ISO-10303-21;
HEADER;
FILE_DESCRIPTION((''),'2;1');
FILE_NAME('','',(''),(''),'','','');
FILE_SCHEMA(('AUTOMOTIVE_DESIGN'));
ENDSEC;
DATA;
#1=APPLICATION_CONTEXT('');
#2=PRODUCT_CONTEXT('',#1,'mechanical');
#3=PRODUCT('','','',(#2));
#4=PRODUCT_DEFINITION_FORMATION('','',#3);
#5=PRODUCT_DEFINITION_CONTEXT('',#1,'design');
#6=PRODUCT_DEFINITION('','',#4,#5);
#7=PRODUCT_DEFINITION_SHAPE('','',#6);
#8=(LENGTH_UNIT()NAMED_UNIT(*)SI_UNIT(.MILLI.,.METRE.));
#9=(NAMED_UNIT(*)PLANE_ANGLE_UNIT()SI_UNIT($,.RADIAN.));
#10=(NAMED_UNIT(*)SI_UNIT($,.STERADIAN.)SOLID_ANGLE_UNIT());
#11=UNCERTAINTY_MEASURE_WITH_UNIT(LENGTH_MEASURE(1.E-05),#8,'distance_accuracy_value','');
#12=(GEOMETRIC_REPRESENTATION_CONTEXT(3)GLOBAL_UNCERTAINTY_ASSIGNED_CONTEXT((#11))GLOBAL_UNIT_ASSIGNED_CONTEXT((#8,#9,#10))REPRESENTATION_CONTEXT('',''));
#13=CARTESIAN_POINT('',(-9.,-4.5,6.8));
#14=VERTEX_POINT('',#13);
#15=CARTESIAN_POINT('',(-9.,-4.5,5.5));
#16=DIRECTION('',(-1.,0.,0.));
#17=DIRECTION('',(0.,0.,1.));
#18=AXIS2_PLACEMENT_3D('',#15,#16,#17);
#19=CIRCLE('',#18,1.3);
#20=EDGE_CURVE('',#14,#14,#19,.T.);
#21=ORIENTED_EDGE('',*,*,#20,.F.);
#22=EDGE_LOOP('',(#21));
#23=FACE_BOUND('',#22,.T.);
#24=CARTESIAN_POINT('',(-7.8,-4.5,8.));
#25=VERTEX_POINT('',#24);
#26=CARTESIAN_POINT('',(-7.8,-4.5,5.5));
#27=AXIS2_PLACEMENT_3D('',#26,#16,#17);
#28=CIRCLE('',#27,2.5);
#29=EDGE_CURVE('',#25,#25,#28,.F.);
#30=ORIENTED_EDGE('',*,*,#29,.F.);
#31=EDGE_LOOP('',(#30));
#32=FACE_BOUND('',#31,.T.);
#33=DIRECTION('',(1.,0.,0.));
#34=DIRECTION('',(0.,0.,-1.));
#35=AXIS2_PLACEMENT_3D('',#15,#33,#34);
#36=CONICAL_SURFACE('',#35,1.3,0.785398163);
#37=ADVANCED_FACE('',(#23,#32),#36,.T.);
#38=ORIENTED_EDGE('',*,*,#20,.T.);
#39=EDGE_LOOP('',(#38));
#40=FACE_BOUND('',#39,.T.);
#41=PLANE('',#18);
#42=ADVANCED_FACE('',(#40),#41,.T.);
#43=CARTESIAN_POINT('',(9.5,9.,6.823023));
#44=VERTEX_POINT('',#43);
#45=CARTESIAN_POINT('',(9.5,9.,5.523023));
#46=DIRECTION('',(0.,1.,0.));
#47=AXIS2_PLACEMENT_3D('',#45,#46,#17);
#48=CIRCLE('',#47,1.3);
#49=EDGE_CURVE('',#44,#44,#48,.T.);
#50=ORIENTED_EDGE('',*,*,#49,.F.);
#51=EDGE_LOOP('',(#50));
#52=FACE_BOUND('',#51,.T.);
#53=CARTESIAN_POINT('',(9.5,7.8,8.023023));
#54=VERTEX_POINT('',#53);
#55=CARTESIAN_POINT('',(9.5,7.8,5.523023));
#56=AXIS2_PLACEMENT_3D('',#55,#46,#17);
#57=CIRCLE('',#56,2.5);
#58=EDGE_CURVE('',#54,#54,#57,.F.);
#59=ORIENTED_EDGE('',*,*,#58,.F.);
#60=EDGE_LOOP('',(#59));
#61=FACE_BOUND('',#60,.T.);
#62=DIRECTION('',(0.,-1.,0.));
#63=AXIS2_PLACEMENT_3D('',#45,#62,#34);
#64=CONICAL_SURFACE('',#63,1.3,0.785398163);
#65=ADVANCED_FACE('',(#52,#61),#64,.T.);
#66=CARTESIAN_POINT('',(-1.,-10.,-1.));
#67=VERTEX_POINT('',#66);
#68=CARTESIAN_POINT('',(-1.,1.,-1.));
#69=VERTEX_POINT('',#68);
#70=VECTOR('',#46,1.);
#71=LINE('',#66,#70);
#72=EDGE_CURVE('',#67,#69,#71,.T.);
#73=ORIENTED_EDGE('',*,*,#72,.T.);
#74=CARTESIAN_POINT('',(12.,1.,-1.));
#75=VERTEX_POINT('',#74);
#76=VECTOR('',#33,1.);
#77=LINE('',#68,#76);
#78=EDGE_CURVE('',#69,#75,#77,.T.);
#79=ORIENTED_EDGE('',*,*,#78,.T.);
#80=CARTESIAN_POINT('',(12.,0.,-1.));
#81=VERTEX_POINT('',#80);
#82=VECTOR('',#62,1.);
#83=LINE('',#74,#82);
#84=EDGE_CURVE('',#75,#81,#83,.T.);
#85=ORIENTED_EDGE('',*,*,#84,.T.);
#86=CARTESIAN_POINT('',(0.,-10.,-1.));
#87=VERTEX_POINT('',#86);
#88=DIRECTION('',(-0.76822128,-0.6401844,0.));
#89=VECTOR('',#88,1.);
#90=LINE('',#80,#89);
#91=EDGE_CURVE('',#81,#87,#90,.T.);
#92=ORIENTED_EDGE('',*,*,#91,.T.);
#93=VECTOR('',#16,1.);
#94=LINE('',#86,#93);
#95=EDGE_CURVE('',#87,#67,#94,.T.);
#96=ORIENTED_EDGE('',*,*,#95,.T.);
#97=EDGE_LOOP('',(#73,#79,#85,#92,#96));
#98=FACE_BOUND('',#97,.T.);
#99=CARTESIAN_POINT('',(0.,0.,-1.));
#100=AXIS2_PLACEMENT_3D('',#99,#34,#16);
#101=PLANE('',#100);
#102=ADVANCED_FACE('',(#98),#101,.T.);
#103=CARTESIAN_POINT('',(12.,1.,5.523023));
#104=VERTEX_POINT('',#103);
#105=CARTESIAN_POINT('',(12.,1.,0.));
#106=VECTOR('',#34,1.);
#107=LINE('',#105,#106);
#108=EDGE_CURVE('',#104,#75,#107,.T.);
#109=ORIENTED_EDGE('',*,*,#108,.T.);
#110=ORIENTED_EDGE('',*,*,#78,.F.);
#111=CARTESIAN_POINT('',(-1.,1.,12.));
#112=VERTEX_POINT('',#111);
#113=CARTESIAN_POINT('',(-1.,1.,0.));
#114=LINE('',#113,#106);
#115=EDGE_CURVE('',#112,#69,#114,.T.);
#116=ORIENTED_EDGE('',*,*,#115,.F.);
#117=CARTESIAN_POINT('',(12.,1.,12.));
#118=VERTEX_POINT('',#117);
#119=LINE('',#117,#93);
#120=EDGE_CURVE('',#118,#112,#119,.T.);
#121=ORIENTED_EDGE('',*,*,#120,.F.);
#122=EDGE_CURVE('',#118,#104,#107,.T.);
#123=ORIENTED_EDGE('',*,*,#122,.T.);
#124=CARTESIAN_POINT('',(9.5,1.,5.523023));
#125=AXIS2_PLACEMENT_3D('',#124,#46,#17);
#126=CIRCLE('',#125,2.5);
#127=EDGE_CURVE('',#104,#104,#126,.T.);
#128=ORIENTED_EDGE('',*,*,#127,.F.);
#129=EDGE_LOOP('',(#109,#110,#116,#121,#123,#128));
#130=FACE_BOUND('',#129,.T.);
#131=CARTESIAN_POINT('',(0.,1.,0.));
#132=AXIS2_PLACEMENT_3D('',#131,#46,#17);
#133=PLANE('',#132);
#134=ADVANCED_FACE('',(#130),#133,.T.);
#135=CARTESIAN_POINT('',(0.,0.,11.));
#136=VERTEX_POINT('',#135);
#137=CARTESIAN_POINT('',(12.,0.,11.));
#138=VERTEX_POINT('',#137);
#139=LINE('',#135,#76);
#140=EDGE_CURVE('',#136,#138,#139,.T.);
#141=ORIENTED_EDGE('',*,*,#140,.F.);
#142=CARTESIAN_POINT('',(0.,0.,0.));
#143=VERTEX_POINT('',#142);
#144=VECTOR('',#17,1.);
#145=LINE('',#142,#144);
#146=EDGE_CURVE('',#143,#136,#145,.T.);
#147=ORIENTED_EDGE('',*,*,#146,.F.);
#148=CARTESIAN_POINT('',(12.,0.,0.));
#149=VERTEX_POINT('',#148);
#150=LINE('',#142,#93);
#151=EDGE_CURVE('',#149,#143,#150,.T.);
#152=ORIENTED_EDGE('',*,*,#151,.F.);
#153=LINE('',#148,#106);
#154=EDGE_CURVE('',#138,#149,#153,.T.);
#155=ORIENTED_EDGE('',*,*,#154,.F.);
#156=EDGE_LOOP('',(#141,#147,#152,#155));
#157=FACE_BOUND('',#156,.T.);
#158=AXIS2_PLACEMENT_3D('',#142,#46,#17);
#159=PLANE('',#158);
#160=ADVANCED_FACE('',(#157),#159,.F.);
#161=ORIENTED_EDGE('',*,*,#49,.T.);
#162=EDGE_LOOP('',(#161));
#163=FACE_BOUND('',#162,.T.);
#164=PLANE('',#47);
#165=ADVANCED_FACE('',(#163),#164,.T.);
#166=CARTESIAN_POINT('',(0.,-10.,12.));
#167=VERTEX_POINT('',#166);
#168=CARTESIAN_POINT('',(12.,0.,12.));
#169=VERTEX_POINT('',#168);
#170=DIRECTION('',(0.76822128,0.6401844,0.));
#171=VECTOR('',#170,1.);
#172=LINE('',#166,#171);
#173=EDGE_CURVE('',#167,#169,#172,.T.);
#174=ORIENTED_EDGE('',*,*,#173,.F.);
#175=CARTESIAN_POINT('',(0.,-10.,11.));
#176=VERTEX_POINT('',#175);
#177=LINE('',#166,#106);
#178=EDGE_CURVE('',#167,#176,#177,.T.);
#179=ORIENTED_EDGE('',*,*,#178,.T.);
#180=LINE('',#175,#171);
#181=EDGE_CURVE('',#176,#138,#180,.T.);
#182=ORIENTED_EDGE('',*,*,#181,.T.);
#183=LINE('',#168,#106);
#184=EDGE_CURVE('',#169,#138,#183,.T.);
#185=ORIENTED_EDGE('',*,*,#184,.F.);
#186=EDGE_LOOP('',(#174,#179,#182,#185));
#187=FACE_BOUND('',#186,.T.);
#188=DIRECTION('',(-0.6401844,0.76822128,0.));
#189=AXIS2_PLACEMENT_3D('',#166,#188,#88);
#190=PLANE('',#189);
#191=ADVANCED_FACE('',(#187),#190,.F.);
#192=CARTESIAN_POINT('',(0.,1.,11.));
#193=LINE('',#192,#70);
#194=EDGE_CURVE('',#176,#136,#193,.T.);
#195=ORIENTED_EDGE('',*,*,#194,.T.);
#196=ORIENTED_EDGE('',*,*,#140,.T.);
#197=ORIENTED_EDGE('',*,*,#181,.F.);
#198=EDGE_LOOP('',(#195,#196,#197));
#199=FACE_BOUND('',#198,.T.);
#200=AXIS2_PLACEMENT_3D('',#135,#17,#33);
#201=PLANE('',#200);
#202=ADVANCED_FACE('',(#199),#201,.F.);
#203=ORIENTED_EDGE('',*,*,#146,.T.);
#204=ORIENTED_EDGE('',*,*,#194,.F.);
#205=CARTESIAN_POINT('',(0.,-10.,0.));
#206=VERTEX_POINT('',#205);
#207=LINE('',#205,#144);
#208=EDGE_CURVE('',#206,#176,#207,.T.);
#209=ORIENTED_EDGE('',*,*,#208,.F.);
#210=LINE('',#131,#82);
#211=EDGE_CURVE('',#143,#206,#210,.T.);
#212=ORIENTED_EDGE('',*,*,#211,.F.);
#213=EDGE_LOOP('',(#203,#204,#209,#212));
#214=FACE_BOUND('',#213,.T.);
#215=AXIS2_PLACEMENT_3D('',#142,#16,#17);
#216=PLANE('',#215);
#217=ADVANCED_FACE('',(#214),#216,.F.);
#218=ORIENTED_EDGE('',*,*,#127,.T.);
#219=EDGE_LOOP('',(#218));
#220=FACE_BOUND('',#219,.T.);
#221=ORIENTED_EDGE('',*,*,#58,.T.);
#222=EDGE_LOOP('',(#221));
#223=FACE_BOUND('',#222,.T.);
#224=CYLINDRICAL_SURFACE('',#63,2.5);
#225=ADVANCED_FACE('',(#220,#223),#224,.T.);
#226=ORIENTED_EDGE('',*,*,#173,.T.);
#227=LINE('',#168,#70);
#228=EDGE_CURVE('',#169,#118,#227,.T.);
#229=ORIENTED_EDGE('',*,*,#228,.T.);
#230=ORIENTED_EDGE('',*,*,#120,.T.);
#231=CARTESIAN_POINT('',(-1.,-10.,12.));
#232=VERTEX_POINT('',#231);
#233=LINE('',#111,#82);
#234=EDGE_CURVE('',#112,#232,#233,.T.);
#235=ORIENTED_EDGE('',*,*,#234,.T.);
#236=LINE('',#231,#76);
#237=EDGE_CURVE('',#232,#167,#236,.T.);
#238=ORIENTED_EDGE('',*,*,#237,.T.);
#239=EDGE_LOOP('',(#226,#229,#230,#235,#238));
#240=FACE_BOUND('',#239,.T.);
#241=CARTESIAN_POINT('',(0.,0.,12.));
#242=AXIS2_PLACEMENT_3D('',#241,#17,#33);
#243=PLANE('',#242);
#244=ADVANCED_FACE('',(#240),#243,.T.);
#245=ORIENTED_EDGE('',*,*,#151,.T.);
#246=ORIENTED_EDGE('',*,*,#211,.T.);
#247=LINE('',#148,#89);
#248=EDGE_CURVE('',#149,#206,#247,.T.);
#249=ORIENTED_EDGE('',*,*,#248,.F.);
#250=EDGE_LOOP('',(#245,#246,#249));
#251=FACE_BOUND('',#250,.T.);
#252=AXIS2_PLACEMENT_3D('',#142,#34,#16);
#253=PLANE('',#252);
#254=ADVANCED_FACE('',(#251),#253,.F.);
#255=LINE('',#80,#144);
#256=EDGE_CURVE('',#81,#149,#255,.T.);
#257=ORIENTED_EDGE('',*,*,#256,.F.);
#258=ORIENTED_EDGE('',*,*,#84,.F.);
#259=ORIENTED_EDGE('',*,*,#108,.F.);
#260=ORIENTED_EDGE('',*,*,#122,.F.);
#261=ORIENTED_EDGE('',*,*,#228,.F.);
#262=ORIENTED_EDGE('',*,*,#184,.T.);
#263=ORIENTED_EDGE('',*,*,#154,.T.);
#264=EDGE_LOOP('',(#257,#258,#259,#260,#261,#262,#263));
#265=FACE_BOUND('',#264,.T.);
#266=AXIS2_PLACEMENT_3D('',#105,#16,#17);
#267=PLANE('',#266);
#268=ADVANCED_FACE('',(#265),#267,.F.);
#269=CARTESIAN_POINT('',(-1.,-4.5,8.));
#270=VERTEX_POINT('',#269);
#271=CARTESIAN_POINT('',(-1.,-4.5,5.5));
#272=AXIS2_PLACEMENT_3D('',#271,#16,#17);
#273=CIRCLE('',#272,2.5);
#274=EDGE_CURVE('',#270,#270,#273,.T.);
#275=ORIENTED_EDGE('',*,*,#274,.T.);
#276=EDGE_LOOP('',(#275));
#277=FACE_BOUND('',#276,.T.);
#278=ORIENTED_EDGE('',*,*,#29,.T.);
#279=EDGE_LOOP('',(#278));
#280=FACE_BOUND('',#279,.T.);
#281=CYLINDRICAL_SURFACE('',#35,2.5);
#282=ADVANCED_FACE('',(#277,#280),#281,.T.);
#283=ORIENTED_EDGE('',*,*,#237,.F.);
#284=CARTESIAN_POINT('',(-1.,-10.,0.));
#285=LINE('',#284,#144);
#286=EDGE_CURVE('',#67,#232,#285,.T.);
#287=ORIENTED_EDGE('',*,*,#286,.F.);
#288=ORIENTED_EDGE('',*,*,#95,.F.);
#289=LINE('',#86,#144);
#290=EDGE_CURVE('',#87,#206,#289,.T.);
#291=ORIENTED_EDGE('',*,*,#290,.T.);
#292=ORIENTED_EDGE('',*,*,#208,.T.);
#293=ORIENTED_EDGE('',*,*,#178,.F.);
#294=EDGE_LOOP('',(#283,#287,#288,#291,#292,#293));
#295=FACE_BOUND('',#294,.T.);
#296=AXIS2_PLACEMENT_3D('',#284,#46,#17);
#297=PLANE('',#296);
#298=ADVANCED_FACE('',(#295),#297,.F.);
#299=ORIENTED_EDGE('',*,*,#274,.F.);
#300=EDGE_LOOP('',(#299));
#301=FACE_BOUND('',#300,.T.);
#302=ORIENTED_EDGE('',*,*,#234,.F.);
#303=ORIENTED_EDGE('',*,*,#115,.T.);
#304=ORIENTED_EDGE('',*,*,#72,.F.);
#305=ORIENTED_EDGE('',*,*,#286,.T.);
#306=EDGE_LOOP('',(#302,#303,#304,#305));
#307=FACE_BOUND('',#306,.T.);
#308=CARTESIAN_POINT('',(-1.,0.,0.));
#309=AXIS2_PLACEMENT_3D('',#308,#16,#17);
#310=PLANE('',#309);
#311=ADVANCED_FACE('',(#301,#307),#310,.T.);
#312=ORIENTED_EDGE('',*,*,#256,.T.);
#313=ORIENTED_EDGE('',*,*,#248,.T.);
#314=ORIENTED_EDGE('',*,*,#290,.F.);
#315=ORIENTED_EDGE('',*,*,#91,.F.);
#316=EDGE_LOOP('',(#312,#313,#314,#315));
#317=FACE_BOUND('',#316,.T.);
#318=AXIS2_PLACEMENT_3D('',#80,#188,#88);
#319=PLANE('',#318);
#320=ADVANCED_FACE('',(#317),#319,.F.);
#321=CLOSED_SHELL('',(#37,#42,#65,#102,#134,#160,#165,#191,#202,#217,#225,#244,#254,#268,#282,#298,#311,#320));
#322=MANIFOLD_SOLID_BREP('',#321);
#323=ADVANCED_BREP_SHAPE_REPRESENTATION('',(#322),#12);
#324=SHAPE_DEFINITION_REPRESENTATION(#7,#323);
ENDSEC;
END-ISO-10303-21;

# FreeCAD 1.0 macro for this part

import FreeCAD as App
import Part
import Sketcher
from FreeCAD import Vector


def edges_at(feature, points):
    """Names of the edges that pass closest to the given points."""
    edges = feature.Shape.Edges
    near = lambda p: min(range(len(edges)), key=lambda i: edges[i].distToShape(Part.Vertex(*p))[0])
    return sorted({f"Edge{near(p) + 1}" for p in points})


def add_polygon(sketch, points):
    """Adds a closed chain of lines whose ends are joined by coincident constraints."""
    first, n = sketch.GeometryCount, len(points)
    for a, b in zip(points, points[1:] + points[:1]):
        sketch.addGeometry(Part.LineSegment(App.Vector(*a, 0), App.Vector(*b, 0)), False)
    for i in range(n):
        sketch.addConstraint(Sketcher.Constraint("Coincident", first + i, 2, first + (i + 1) % n, 1))

doc = App.newDocument("Part")
body = doc.addObject("PartDesign::Body", "Body")

# Sketch on XZ plane
sketch1 = doc.addObject("Sketcher::SketchObject", "Sketch")
body.addObject(sketch1)
sketch1.AttachmentSupport = (doc.XZ_Plane, [""])
sketch1.MapMode = "FlatFace"
add_polygon(sketch1, [(0, 0), (0, 11), (12, 11), (12, 0)])  # lines 0-3
sketch1.addConstraint([
    Sketcher.Constraint("Vertical", 0),
    Sketcher.Constraint("Horizontal", 1),
    Sketcher.Constraint("Vertical", 2),
    Sketcher.Constraint("Horizontal", 3),
    Sketcher.Constraint("Coincident", 3, 2, -1, 1),
    Sketcher.Constraint("DistanceX", 1, 1, 1, 2, 12.0),
    Sketcher.Constraint("DistanceY", 0, 1, 0, 2, 11.0),
])
pad1 = doc.addObject("PartDesign::Pad", "Pad")
body.addObject(pad1)
pad1.Profile = sketch1
pad1.Length = 1
pad1.Reversed = True

# Sketch on YZ plane
sketch2 = doc.addObject("Sketcher::SketchObject", "Sketch001")
body.addObject(sketch2)
sketch2.AttachmentSupport = (doc.YZ_Plane, [""])
sketch2.MapMode = "FlatFace"
add_polygon(sketch2, [(1, 0), (-10, 0), (-10, 11), (1, 11)])  # lines 0-3
sketch2.addConstraint([
    Sketcher.Constraint("Horizontal", 0),
    Sketcher.Constraint("Vertical", 1),
    Sketcher.Constraint("Horizontal", 2),
    Sketcher.Constraint("Vertical", 3),
    Sketcher.Constraint("PointOnObject", 0, 2, -1),
    Sketcher.Constraint("Equal", 2, 1),
    Sketcher.Constraint("DistanceX", 0, 2, 0, 1, 11.0),
    Sketcher.Constraint("DistanceX", 0, 2, -1, 1, 10.0),
])
pad2 = doc.addObject("PartDesign::Pad", "Pad001")
body.addObject(pad2)
pad2.Profile = sketch2
pad2.Length = 1
pad2.Reversed = True

# Sketch on YZ plane
sketch3 = doc.addObject("Sketcher::SketchObject", "Sketch002")
body.addObject(sketch3)
sketch3.AttachmentSupport = (doc.YZ_Plane, [""])
sketch3.MapMode = "FlatFace"
sketch3.AttachmentOffset = App.Placement(Vector(0, 0, -1), App.Rotation())
sketch3.addGeometry(Part.Circle(Vector(-4.5, 5.5, 0), Vector(0, 0, 1), 2.5), False)
sketch3.addConstraint([
    Sketcher.Constraint("Diameter", 0, 5.0),
    Sketcher.Constraint("DistanceX", 0, 3, -1, 1, 4.5),
    Sketcher.Constraint("DistanceY", -1, 1, 0, 3, 5.5),
])
pad3 = doc.addObject("PartDesign::Pad", "Pad002")
body.addObject(pad3)
pad3.Profile = sketch3
pad3.Length = 8
pad3.Reversed = True
doc.recompute()

chamfer = doc.addObject("PartDesign::Chamfer", "Chamfer")
body.addObject(chamfer)
chamfer.Base = (pad3, edges_at(pad3, [(-9, -4.5, 3)]))
chamfer.Size = 1.2

# Sketch on XZ plane
sketch4 = doc.addObject("Sketcher::SketchObject", "Sketch003")
body.addObject(sketch4)
sketch4.AttachmentSupport = (doc.XZ_Plane, [""])
sketch4.MapMode = "FlatFace"
sketch4.AttachmentOffset = App.Placement(Vector(0, 0, -1), App.Rotation())
sketch4.addGeometry(Part.Circle(Vector(9.5, 5.5, 0), Vector(0, 0, 1), 2.5), False)
sketch4.addConstraint([
    Sketcher.Constraint("Diameter", 0, 5.0),
    Sketcher.Constraint("DistanceX", -1, 1, 0, 3, 9.5),
    Sketcher.Constraint("DistanceY", -1, 1, 0, 3, 5.523023),
])
pad4 = doc.addObject("PartDesign::Pad", "Pad003")
body.addObject(pad4)
pad4.Profile = sketch4
pad4.Length = 8
pad4.Reversed = True
doc.recompute()

chamfer2 = doc.addObject("PartDesign::Chamfer", "Chamfer001")
body.addObject(chamfer2)
chamfer2.Base = (pad4, edges_at(pad4, [(7, 9, 5.523)]))
chamfer2.Size = 1.2

# Sketch on XY plane
sketch5 = doc.addObject("Sketcher::SketchObject", "Sketch004")
body.addObject(sketch5)
sketch5.AttachmentSupport = (doc.XY_Plane, [""])
sketch5.MapMode = "FlatFace"
sketch5.AttachmentOffset = App.Placement(Vector(0, 0, 11), App.Rotation())
add_polygon(sketch5, [(0, -10), (12, 0), (12, 1), (-1, 1), (-1, -10)])  # lines 0-4
sketch5.addConstraint([
    Sketcher.Constraint("Vertical", 1),
    Sketcher.Constraint("Horizontal", 2),
    Sketcher.Constraint("Vertical", 3),
    Sketcher.Constraint("Horizontal", 4),
    Sketcher.Constraint("PointOnObject", 0, 2, -1),
    Sketcher.Constraint("PointOnObject", 4, 2, -2),
    Sketcher.Constraint("Equal", 4, 1),
    Sketcher.Constraint("DistanceX", 2, 2, 2, 1, 13.0),
    Sketcher.Constraint("DistanceX", 4, 1, 4, 2, 1.0),
    Sketcher.Constraint("DistanceY", 3, 2, 3, 1, 11.0),
])
pad5 = doc.addObject("PartDesign::Pad", "Pad004")
body.addObject(pad5)
pad5.Profile = sketch5
pad5.Length = 1

# Sketch on XY plane
sketch6 = doc.addObject("Sketcher::SketchObject", "Sketch005")
body.addObject(sketch6)
sketch6.AttachmentSupport = (doc.XY_Plane, [""])
sketch6.MapMode = "FlatFace"
add_polygon(sketch6, [(12, 0), (0, -10), (-1, -10), (-1, 1), (12, 1)])  # lines 0-4
sketch6.addConstraint([
    Sketcher.Constraint("Horizontal", 1),
    Sketcher.Constraint("Vertical", 2),
    Sketcher.Constraint("Horizontal", 3),
    Sketcher.Constraint("Vertical", 4),
    Sketcher.Constraint("PointOnObject", 0, 2, -2),
    Sketcher.Constraint("PointOnObject", 4, 2, -1),
    Sketcher.Constraint("Equal", 1, 4),
    Sketcher.Constraint("DistanceX", 1, 2, 1, 1, 1.0),
    Sketcher.Constraint("DistanceX", 3, 1, 3, 2, 13.0),
    Sketcher.Constraint("DistanceY", 2, 1, 2, 2, 11.0),
])
pad6 = doc.addObject("PartDesign::Pad", "Pad005")
body.addObject(pad6)
pad6.Profile = sketch6
pad6.Length = 1
pad6.Reversed = True

doc.recompute()
